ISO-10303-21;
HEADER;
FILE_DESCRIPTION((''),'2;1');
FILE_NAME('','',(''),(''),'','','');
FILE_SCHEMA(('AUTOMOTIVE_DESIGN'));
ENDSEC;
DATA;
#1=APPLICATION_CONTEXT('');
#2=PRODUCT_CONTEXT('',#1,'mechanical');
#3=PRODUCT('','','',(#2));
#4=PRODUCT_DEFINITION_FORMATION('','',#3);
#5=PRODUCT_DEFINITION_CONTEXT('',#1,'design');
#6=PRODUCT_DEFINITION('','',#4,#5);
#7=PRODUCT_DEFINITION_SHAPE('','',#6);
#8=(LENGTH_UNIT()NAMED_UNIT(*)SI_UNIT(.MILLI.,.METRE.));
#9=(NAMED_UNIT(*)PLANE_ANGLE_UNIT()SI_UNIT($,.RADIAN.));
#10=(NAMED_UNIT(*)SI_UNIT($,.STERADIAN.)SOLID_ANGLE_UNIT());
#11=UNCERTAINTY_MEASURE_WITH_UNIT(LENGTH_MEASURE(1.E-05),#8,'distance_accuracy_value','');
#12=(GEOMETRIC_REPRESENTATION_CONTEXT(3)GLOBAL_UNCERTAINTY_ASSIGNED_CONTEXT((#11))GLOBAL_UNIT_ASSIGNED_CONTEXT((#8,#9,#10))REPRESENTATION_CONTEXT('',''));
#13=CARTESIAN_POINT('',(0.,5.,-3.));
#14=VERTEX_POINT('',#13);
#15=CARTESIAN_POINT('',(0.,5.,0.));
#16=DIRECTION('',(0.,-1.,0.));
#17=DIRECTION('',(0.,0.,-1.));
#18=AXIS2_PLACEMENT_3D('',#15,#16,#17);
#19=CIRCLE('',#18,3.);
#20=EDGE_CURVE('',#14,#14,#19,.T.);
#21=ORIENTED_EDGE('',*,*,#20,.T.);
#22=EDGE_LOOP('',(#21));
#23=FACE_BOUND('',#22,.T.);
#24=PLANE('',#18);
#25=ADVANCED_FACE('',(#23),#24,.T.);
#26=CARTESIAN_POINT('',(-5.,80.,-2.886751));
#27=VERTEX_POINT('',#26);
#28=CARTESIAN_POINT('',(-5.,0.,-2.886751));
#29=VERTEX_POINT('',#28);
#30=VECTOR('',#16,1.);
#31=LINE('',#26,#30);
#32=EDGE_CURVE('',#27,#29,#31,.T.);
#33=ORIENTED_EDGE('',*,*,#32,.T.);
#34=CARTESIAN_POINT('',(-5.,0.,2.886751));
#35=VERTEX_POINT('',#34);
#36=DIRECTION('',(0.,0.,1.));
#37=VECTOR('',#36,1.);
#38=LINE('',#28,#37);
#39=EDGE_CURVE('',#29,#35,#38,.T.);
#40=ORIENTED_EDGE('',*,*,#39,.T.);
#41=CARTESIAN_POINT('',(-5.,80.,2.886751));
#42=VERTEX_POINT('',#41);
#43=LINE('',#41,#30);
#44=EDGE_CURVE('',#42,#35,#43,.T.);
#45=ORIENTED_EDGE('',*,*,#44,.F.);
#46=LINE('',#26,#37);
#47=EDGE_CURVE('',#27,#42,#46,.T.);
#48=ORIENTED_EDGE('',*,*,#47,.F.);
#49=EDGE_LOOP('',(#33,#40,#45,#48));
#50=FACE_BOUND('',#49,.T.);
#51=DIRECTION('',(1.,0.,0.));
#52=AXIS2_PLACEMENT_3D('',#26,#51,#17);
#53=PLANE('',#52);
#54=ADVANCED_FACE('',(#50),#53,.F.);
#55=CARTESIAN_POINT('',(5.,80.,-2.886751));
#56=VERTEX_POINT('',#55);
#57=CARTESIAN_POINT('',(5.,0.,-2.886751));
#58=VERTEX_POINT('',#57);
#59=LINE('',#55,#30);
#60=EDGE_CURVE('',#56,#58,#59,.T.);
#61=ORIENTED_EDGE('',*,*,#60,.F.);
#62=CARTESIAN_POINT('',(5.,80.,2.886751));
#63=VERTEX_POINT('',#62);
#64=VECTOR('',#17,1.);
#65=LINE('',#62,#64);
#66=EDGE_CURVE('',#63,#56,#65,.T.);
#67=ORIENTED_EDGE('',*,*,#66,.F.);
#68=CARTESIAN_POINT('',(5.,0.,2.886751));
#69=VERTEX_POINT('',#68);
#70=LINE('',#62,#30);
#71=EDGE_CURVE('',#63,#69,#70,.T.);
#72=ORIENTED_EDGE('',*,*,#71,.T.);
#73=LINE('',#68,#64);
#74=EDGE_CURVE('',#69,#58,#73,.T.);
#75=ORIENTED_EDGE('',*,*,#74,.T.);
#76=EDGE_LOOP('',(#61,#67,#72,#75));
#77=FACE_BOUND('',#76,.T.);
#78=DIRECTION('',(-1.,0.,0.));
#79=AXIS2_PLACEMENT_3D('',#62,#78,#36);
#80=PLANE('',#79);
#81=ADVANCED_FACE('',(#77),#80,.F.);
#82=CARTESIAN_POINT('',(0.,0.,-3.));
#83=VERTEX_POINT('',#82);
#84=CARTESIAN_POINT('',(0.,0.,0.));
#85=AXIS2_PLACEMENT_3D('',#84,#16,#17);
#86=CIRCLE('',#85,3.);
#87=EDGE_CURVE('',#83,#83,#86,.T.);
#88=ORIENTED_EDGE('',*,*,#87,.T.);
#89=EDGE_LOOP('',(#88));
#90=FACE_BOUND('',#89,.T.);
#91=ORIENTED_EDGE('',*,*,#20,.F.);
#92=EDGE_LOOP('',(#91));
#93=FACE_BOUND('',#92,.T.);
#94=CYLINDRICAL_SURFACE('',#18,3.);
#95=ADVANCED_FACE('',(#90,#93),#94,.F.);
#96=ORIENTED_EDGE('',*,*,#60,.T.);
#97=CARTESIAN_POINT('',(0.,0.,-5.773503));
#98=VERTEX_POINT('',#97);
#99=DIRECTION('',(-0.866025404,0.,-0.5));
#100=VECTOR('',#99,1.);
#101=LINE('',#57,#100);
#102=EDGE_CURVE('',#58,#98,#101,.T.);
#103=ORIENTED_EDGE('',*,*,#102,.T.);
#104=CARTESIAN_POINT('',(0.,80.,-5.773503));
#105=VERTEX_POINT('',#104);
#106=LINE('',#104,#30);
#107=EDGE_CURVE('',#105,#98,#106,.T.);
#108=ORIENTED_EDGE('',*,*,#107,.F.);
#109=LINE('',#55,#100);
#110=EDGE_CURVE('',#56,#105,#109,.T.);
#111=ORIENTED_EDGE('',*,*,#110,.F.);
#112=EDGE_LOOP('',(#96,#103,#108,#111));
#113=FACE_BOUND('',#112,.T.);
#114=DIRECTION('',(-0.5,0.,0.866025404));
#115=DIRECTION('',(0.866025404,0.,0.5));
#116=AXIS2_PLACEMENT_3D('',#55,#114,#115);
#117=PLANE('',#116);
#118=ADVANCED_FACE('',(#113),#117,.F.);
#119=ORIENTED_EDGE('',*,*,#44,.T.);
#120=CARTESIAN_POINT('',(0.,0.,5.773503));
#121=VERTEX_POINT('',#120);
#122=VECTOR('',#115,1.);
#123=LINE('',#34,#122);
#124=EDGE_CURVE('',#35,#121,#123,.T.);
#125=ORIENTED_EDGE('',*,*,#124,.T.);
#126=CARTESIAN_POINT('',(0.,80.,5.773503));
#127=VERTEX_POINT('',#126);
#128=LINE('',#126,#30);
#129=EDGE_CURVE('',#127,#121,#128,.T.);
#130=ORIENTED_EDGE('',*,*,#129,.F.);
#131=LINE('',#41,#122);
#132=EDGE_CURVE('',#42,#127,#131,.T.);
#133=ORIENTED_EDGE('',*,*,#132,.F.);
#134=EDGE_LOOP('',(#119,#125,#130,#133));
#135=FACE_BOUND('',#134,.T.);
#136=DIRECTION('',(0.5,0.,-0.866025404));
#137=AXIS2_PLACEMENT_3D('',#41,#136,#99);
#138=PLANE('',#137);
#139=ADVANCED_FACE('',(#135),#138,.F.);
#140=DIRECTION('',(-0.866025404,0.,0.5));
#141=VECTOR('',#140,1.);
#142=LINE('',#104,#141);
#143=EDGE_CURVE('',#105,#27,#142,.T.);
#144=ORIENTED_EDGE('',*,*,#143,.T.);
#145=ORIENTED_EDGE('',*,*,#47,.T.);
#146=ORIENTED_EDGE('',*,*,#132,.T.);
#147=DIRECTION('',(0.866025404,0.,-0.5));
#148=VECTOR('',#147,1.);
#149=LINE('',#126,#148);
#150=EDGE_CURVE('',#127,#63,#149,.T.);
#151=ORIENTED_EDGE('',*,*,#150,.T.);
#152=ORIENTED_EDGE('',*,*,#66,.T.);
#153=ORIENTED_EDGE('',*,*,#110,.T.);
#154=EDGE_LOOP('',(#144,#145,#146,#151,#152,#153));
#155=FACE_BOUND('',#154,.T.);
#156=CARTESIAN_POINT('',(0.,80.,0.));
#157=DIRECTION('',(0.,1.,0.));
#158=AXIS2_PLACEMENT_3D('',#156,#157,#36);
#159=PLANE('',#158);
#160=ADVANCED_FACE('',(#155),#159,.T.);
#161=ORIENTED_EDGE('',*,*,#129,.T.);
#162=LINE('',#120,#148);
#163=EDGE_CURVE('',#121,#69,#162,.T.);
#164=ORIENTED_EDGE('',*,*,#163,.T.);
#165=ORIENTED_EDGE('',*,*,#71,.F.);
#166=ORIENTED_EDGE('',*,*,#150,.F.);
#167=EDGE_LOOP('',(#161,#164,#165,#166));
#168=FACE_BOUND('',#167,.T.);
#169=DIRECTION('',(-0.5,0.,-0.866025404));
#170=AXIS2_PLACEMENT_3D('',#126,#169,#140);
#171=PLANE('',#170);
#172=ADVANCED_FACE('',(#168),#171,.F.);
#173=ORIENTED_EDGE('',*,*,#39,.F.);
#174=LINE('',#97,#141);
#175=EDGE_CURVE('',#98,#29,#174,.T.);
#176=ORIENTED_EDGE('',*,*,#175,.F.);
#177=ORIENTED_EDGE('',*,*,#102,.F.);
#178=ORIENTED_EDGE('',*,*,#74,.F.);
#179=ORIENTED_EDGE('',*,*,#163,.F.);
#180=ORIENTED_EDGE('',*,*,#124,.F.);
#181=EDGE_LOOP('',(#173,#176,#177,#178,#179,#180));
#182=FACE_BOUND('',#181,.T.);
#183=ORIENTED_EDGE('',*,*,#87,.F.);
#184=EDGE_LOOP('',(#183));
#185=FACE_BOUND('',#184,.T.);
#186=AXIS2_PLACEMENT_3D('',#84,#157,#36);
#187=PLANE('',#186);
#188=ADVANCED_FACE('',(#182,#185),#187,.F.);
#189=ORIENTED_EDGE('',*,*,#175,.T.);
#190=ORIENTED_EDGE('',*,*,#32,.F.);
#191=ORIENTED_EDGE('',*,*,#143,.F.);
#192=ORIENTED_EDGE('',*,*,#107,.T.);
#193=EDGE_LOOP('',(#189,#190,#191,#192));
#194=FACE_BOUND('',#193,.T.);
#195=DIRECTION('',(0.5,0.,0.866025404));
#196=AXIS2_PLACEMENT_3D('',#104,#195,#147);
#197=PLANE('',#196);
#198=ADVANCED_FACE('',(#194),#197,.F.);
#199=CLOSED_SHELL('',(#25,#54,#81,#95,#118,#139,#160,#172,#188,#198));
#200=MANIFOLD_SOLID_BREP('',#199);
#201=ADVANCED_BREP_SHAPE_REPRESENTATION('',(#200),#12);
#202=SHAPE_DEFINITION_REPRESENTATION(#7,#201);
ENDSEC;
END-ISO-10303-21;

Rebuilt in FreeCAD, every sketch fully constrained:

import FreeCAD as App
import Part
import Sketcher
Q = App.Units.Quantity

doc = App.newDocument("Part")
body = doc.addObject("PartDesign::Body", "Body")

# Sketch on XZ plane
sketch1 = body.newObject("Sketcher::SketchObject", "Sketch")
sketch1.AttachmentSupport = (doc.getObject("XZ_Plane"), [""])
sketch1.MapMode = "FlatFace"
sketch1.addGeometry(Part.LineSegment(App.Vector(0, -6, 0), App.Vector(-5, -3, 0)), False)
sketch1.addGeometry(Part.LineSegment(App.Vector(-5, -3, 0), App.Vector(-5, 3, 0)), False)
sketch1.addGeometry(Part.LineSegment(App.Vector(-5, 3, 0), App.Vector(0, 6, 0)), False)
sketch1.addGeometry(Part.LineSegment(App.Vector(0, 6, 0), App.Vector(5, 3, 0)), False)
sketch1.addGeometry(Part.LineSegment(App.Vector(5, 3, 0), App.Vector(5, -3, 0)), False)
sketch1.addGeometry(Part.LineSegment(App.Vector(5, -3, 0), App.Vector(0, -6, 0)), False)
sketch1.addConstraint(Sketcher.Constraint("Coincident", 0, 2, 1, 1))
sketch1.addConstraint(Sketcher.Constraint("Coincident", 1, 2, 2, 1))
sketch1.addConstraint(Sketcher.Constraint("Coincident", 2, 2, 3, 1))
sketch1.addConstraint(Sketcher.Constraint("Coincident", 3, 2, 4, 1))
sketch1.addConstraint(Sketcher.Constraint("Coincident", 4, 2, 5, 1))
sketch1.addConstraint(Sketcher.Constraint("Coincident", 5, 2, 0, 1))
sketch1.addConstraint(Sketcher.Constraint("Vertical", 1))
sketch1.addConstraint(Sketcher.Constraint("Vertical", 4))
sketch1.addConstraint(Sketcher.Constraint("Symmetric", 0, 2, 3, 2, -1, 1))
sketch1.addConstraint(Sketcher.Constraint("Symmetric", 2, 2, 5, 2, -1, 1))
sketch1.addConstraint(Sketcher.Constraint("PointOnObject", 2, 2, -2))
sketch1.addConstraint(Sketcher.Constraint("Parallel", 2, 5))
sketch1.addConstraint(Sketcher.Constraint("Horizontal", 1, 2, 3, 2))
sketch1.addConstraint(Sketcher.Constraint("Angle", 0, Q("150 deg")))
sketch1.addConstraint(Sketcher.Constraint("DistanceX", 0, 2, -1, 1, 5.0))
sketch1.addConstraint(Sketcher.Constraint("DistanceY", 1, 1, 1, 2, 5.773503))
pad1 = body.newObject("PartDesign::Pad", "Pad")
pad1.Profile = sketch1
pad1.Length = 80
pad1.Reversed = True

# Sketch on XZ plane
sketch2 = body.newObject("Sketcher::SketchObject", "Sketch001")
sketch2.AttachmentSupport = (doc.getObject("XZ_Plane"), [""])
sketch2.MapMode = "FlatFace"
sketch2.addGeometry(Part.Circle(App.Vector(0, 0, 0), App.Vector(0, 0, 1), 3), False)
sketch2.addConstraint(Sketcher.Constraint("Coincident", 0, 3, -1, 1))
sketch2.addConstraint(Sketcher.Constraint("Diameter", 0, 6.0))
pocket1 = body.newObject("PartDesign::Pocket", "Pocket")
pocket1.Profile = sketch2
pocket1.Length = 5

doc.recompute()
